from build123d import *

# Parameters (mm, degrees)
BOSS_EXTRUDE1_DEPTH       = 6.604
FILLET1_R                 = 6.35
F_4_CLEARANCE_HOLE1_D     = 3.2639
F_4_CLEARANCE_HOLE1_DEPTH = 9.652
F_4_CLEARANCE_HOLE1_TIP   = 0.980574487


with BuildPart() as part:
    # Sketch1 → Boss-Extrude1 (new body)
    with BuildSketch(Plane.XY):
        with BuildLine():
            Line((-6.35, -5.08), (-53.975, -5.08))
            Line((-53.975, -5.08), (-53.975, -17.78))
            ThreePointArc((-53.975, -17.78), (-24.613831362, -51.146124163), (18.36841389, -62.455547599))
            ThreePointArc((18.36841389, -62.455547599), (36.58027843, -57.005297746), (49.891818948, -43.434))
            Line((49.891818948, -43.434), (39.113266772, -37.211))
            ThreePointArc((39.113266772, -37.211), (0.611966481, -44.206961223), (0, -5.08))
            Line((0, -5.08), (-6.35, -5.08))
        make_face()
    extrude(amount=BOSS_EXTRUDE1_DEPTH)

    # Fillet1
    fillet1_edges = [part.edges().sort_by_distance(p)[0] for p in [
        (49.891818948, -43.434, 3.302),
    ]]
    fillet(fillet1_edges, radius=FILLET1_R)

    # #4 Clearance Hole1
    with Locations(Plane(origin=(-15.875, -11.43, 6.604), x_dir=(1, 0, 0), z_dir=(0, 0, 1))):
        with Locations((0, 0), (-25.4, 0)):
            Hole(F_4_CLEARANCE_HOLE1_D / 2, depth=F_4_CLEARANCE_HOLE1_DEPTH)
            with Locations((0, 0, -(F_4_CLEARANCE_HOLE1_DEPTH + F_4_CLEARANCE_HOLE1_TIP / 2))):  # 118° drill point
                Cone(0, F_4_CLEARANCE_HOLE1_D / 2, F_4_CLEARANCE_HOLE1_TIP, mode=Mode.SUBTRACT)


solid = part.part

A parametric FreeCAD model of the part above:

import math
import FreeCAD as App
import Part
import Sketcher

V = App.Vector
Q = App.Units.Quantity


def edges_at(feature, points):
    """Names of the edges that pass closest to the given points."""
    edges = feature.Shape.Edges
    near = lambda p: min(range(len(edges)), key=lambda i: edges[i].distToShape(Part.Vertex(*p))[0])
    return sorted({f"Edge{near(p) + 1}" for p in points})

doc = App.newDocument("Part")
params = doc.addObject("Spreadsheet::Sheet", "Params")
for row, (alias, value) in enumerate([
    ("sketch1_radius", "3 in"),
    ("sketch1_radius2", "1.5 in"),
    ("sketch1_radius3", "1.01 in"),
    ("sketch1_height", "0.5 in"),
    ("sketch1_width", "2.125 in"),
    ("pad1_length", "0.26 in"),
    ("fillet_radius", "0.25 in"),
    ("hole_diameter", "0.1285 in"),
    ("hole_depth", "0.38 in"),
], start=1):
    params.set(f"A{row}", alias)
    params.set(f"B{row}", "=" + value)
    params.setAlias(f"B{row}", alias)

body = doc.addObject("PartDesign::Body", "Body")

sketch1 = body.newObject("Sketcher::SketchObject", "Sketch")
sketch1.AttachmentSupport = (doc.getObject("XY_Plane"), [""])
sketch1.MapMode = "FlatFace"
sketch1.addGeometry([
    Part.LineSegment(V(-54, -5, 0), V(-54, -18, 0)),
    Part.ArcOfCircle(Part.Circle(V(15, 14, 0), V(0, 0, 1), 76), math.radians(-156), math.radians(-88)),
    Part.ArcOfCircle(Part.Circle(V(17, -24, 0), V(0, 0, 1), 38), math.radians(-88), math.radians(-30)),
    Part.LineSegment(V(50, -43, 0), V(39, -37, 0)),
    Part.ArcOfCircle(Part.Circle(V(17, -24, 0), V(0, 0, 1), 26), math.radians(131), math.radians(330)),
    Part.LineSegment(V(0, -5, 0), V(-54, -5, 0)),
], False)
sketch1.addConstraint([
    Sketcher.Constraint("Coincident", 0, 2, 1, 1),
    Sketcher.Constraint("Tangent", 1, 2, 2, 1),
    Sketcher.Constraint("Coincident", 2, 2, 3, 1),
    Sketcher.Constraint("Coincident", 3, 2, 4, 2),
    Sketcher.Constraint("Coincident", 4, 1, 5, 1),
    Sketcher.Constraint("Coincident", 5, 2, 0, 1),
    Sketcher.Constraint("Vertical", 0),
    Sketcher.Constraint("Horizontal", 5),
    Sketcher.Constraint("Coincident", 4, 3, 2, 3),
    Sketcher.Constraint("PointOnObject", 4, 1, -2),
    Sketcher.Constraint("Radius", 1, Q("3 in")),
    Sketcher.Constraint("Radius", 2, Q("1.5 in")),
    Sketcher.Constraint("Radius", 4, Q("1.01 in")),
    Sketcher.Constraint("DistanceY", 0, 2, 0, 1, Q("0.5 in")),
    Sketcher.Constraint("Angle", 3, Q("150 deg")),
    Sketcher.Constraint("DistanceY", 0, 2, -1, 1, Q("0.7 in")),
    Sketcher.Constraint("DistanceX", 5, 2, 5, 1, Q("2.125 in")),
    Sketcher.Constraint("DistanceY", 2, 3, -1, 1, Q("0.96 in")),
    Sketcher.Constraint("DistanceY", 2, 2, -1, 1, Q("1.71 in")),
])
sketch1.setExpression("Constraints[10]", "Params.sketch1_radius")
sketch1.setExpression("Constraints[11]", "Params.sketch1_radius2")
sketch1.setExpression("Constraints[12]", "Params.sketch1_radius3")
sketch1.setExpression("Constraints[13]", "Params.sketch1_height")
sketch1.setExpression("Constraints[16]", "Params.sketch1_width")
pad1 = body.newObject("PartDesign::Pad", "Pad")
pad1.Profile = sketch1
pad1.setExpression("Length", "Params.pad1_length")
doc.recompute()

fillet = body.newObject("PartDesign::Fillet", "Fillet")
fillet.Base = (pad1, edges_at(pad1, [(49.892, -43.434, 3.302)]))
fillet.setExpression("Radius", "Params.fillet_radius")

sketch2 = body.newObject("Sketcher::SketchObject", "Sketch001")
sketch2.AttachmentSupport = (doc.getObject("XY_Plane"), [""])
sketch2.MapMode = "FlatFace"
sketch2.AttachmentOffset = App.Placement(V(0, 0, 0.26 * 25.4), App.Rotation())
sketch2.addGeometry([
    Part.Circle(V(-15.9, -11.4, 0), V(0, 0, 1), 1.6),
    Part.Circle(V(-41.3, -11.4, 0), V(0, 0, 1), 1.6),
], False)
sketch2.addConstraint([
    Sketcher.Constraint("Equal", 0, 1),
    Sketcher.Constraint("Horizontal", 0, 3, 1, 3),
    Sketcher.Constraint("DistanceX", 1, 3, 0, 3, Q("1 in")),
    Sketcher.Constraint("Diameter", 0, Q("0.1285 in")),
    Sketcher.Constraint("DistanceY", 0, 3, -1, 1, Q("0.45 in")),
    Sketcher.Constraint("DistanceX", 0, 3, -1, 1, Q("0.625 in")),
])
doc.recompute()
hole = body.newObject("PartDesign::Hole", "Hole")
hole.Profile = sketch2
hole.ThreadType = "None"
hole.setExpression("Diameter", "Params.hole_diameter")
hole.DepthType = "Dimension"
hole.setExpression("Depth", "Params.hole_depth")
hole.DrillPoint = "Angled"
hole.DrillPointAngle = 118

doc.recompute()
